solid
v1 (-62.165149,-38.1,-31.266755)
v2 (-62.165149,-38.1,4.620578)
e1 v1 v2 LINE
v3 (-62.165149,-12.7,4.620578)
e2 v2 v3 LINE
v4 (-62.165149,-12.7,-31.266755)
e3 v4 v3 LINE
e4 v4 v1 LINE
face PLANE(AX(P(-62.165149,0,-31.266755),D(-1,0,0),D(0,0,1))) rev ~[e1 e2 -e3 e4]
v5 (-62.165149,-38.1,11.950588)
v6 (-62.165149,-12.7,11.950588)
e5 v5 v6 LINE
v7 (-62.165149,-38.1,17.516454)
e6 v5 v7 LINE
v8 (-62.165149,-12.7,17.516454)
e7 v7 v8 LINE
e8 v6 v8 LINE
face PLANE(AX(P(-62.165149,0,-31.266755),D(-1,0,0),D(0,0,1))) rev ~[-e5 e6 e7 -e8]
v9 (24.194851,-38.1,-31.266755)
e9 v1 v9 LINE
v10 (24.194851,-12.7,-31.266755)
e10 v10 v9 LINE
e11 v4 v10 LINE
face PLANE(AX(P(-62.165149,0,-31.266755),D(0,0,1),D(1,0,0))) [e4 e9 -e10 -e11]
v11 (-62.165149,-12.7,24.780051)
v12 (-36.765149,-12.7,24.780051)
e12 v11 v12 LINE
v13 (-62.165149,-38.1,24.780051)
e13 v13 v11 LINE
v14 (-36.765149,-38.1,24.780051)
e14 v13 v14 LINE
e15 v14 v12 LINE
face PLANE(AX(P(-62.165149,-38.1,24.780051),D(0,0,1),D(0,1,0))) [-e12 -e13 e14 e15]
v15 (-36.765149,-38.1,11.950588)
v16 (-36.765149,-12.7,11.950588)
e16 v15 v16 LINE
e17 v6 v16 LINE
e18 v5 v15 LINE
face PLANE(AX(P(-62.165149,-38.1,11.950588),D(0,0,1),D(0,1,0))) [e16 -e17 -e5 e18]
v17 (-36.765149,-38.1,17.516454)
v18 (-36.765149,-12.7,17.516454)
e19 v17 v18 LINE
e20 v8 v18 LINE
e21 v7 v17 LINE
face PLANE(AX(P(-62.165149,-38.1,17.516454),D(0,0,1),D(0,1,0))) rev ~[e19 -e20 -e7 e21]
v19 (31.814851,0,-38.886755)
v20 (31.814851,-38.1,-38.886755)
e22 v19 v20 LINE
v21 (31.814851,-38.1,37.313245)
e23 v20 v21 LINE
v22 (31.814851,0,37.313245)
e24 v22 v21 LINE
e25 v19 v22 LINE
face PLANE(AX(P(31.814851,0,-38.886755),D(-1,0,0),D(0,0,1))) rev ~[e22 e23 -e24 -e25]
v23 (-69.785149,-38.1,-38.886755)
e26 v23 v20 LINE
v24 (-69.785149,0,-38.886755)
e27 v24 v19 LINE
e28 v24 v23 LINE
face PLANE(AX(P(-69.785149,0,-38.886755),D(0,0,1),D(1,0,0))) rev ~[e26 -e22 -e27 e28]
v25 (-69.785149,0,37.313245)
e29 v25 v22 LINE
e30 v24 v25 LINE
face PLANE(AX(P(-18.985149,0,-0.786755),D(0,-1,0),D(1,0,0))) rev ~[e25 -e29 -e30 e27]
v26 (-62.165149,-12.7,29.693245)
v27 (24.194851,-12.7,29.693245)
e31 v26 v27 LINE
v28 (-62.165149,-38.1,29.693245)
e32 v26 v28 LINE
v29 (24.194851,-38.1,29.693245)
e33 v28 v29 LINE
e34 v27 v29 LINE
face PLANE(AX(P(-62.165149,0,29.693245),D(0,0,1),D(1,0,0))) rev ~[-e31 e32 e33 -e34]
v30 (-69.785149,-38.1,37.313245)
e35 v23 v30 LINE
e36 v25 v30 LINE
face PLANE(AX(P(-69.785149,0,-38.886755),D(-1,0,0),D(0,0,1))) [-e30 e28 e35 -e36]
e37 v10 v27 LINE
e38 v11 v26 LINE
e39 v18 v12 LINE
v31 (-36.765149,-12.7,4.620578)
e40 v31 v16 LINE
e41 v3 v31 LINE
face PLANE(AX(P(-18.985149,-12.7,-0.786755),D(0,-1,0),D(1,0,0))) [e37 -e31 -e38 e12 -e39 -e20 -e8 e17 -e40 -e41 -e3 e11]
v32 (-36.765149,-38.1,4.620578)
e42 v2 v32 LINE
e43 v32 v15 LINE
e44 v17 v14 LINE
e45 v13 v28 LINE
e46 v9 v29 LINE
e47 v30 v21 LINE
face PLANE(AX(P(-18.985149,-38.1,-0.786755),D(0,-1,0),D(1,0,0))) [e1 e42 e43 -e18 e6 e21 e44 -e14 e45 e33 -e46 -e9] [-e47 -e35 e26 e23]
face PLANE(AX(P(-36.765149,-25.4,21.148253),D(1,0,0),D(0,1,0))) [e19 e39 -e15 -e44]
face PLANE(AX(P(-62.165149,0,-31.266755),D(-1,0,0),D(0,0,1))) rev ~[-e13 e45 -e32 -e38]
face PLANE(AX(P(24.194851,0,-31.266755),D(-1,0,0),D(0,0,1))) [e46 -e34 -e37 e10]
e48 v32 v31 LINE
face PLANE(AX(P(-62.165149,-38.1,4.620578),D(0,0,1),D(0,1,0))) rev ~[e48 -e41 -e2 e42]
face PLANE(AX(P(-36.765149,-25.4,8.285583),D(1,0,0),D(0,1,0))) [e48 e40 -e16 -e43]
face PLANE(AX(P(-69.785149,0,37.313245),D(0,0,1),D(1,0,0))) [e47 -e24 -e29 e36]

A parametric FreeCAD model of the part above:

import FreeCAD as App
import Part
import Sketcher
Q = App.Units.Quantity

doc = App.newDocument("Part")
params = doc.addObject("Spreadsheet::Sheet", "Params")
for row, (alias, value) in enumerate([
    ("sketch1_width", "4 in"),
    ("sketch1_height", "3 in"),
    ("sketch1_width2", "3.4 in"),
    ("sketch1_height2", "2.4 in"),
    ("pad1_length", "1.5 in"),
    ("sketch2_width", "3.4 in"),
    ("sketch2_height", "2.4 in"),
    ("pad2_length", "0.5 in"),
    ("sketch3_width", "1 in"),
    ("pad3_length", "1 in"),
    ("sketch4_width", "1 in"),
    ("pad4_length", "1 in"),
], start=1):
    params.set(f"A{row}", alias)
    params.set(f"B{row}", "=" + value)
    params.setAlias(f"B{row}", alias)

body = doc.addObject("PartDesign::Body", "Body")

# Sketch on XZ plane
sketch1 = body.newObject("Sketcher::SketchObject", "Sketch")
sketch1.AttachmentSupport = (doc.getObject("XZ_Plane"), [""])
sketch1.MapMode = "FlatFace"
sketch1.addGeometry(Part.LineSegment(App.Vector(-70, 37, 0), App.Vector(-70, -39, 0)), False)
sketch1.addGeometry(Part.LineSegment(App.Vector(-70, -39, 0), App.Vector(32, -39, 0)), False)
sketch1.addGeometry(Part.LineSegment(App.Vector(32, -39, 0), App.Vector(32, 37, 0)), False)
sketch1.addGeometry(Part.LineSegment(App.Vector(32, 37, 0), App.Vector(-70, 37, 0)), False)
sketch1.addGeometry(Part.LineSegment(App.Vector(24, -31, 0), App.Vector(-62, -31, 0)), False)
sketch1.addGeometry(Part.LineSegment(App.Vector(-62, -31, 0), App.Vector(-62, 30, 0)), False)
sketch1.addGeometry(Part.LineSegment(App.Vector(-62, 30, 0), App.Vector(24, 30, 0)), False)
sketch1.addGeometry(Part.LineSegment(App.Vector(24, 30, 0), App.Vector(24, -31, 0)), False)
sketch1.addConstraint(Sketcher.Constraint("Coincident", 0, 2, 1, 1))
sketch1.addConstraint(Sketcher.Constraint("Coincident", 1, 2, 2, 1))
sketch1.addConstraint(Sketcher.Constraint("Coincident", 2, 2, 3, 1))
sketch1.addConstraint(Sketcher.Constraint("Coincident", 3, 2, 0, 1))
sketch1.addConstraint(Sketcher.Constraint("Coincident", 4, 2, 5, 1))
sketch1.addConstraint(Sketcher.Constraint("Coincident", 5, 2, 6, 1))
sketch1.addConstraint(Sketcher.Constraint("Coincident", 6, 2, 7, 1))
sketch1.addConstraint(Sketcher.Constraint("Coincident", 7, 2, 4, 1))
sketch1.addConstraint(Sketcher.Constraint("Vertical", 0))
sketch1.addConstraint(Sketcher.Constraint("Horizontal", 1))
sketch1.addConstraint(Sketcher.Constraint("Vertical", 2))
sketch1.addConstraint(Sketcher.Constraint("Horizontal", 3))
sketch1.addConstraint(Sketcher.Constraint("Horizontal", 4))
sketch1.addConstraint(Sketcher.Constraint("Vertical", 5))
sketch1.addConstraint(Sketcher.Constraint("Horizontal", 6))
sketch1.addConstraint(Sketcher.Constraint("Vertical", 7))
sketch1.addConstraint(Sketcher.Constraint("DistanceX", 1, 1, 1, 2, Q("4 in")))
sketch1.addConstraint(Sketcher.Constraint("DistanceY", 0, 2, 0, 1, Q("3 in")))
sketch1.addConstraint(Sketcher.Constraint("DistanceX", 4, 2, 4, 1, Q("3.4 in")))
sketch1.addConstraint(Sketcher.Constraint("DistanceY", 5, 1, 5, 2, Q("2.4 in")))
sketch1.addConstraint(Sketcher.Constraint("DistanceX", 0, 2, 4, 2, Q("0.3 in")))
sketch1.addConstraint(Sketcher.Constraint("DistanceY", 0, 2, 4, 2, Q("0.3 in")))
sketch1.addConstraint(Sketcher.Constraint("DistanceX", 0, 2, -1, 1, Q("69.785149 mm")))
sketch1.addConstraint(Sketcher.Constraint("DistanceY", 0, 2, -1, 1, Q("38.886755 mm")))
sketch1.setExpression("Constraints[16]", "Params.sketch1_width")
sketch1.setExpression("Constraints[17]", "Params.sketch1_height")
sketch1.setExpression("Constraints[18]", "Params.sketch1_width2")
sketch1.setExpression("Constraints[19]", "Params.sketch1_height2")
pad1 = body.newObject("PartDesign::Pad", "Pad")
pad1.Profile = sketch1
pad1.setExpression("Length", "Params.pad1_length")

# Sketch on XZ plane
sketch2 = body.newObject("Sketcher::SketchObject", "Sketch001")
sketch2.AttachmentSupport = (doc.getObject("XZ_Plane"), [""])
sketch2.MapMode = "FlatFace"
sketch2.addGeometry(Part.LineSegment(App.Vector(-62, 30, 0), App.Vector(-62, -31, 0)), False)
sketch2.addGeometry(Part.LineSegment(App.Vector(-62, -31, 0), App.Vector(24, -31, 0)), False)
sketch2.addGeometry(Part.LineSegment(App.Vector(24, -31, 0), App.Vector(24, 30, 0)), False)
sketch2.addGeometry(Part.LineSegment(App.Vector(24, 30, 0), App.Vector(-62, 30, 0)), False)
sketch2.addConstraint(Sketcher.Constraint("Coincident", 0, 2, 1, 1))
sketch2.addConstraint(Sketcher.Constraint("Coincident", 1, 2, 2, 1))
sketch2.addConstraint(Sketcher.Constraint("Coincident", 2, 2, 3, 1))
sketch2.addConstraint(Sketcher.Constraint("Coincident", 3, 2, 0, 1))
sketch2.addConstraint(Sketcher.Constraint("Vertical", 0))
sketch2.addConstraint(Sketcher.Constraint("Horizontal", 1))
sketch2.addConstraint(Sketcher.Constraint("Vertical", 2))
sketch2.addConstraint(Sketcher.Constraint("Horizontal", 3))
sketch2.addConstraint(Sketcher.Constraint("DistanceX", 1, 1, 1, 2, Q("3.4 in")))
sketch2.addConstraint(Sketcher.Constraint("DistanceY", 0, 2, 0, 1, Q("2.4 in")))
sketch2.addConstraint(Sketcher.Constraint("DistanceX", 0, 2, -1, 1, Q("62.165149 mm")))
sketch2.addConstraint(Sketcher.Constraint("DistanceY", 0, 2, -1, 1, Q("31.266755 mm")))
sketch2.setExpression("Constraints[8]", "Params.sketch2_width")
sketch2.setExpression("Constraints[9]", "Params.sketch2_height")
pad2 = body.newObject("PartDesign::Pad", "Pad001")
pad2.Profile = sketch2
pad2.setExpression("Length", "Params.pad2_length")

# Sketch on YZ plane
sketch3 = body.newObject("Sketcher::SketchObject", "Sketch002")
sketch3.AttachmentSupport = (doc.getObject("YZ_Plane"), [""])
sketch3.MapMode = "FlatFace"
sketch3.AttachmentOffset = App.Placement(App.Vector(0, 0, -62.165149), App.Rotation())
sketch3.addGeometry(Part.LineSegment(App.Vector(-38, 25, 0), App.Vector(-38, 18, 0)), False)
sketch3.addGeometry(Part.LineSegment(App.Vector(-38, 18, 0), App.Vector(-13, 18, 0)), False)
sketch3.addGeometry(Part.LineSegment(App.Vector(-13, 18, 0), App.Vector(-13, 25, 0)), False)
sketch3.addGeometry(Part.LineSegment(App.Vector(-13, 25, 0), App.Vector(-38, 25, 0)), False)
sketch3.addConstraint(Sketcher.Constraint("Coincident", 0, 2, 1, 1))
sketch3.addConstraint(Sketcher.Constraint("Coincident", 1, 2, 2, 1))
sketch3.addConstraint(Sketcher.Constraint("Coincident", 2, 2, 3, 1))
sketch3.addConstraint(Sketcher.Constraint("Coincident", 3, 2, 0, 1))
sketch3.addConstraint(Sketcher.Constraint("Vertical", 0))
sketch3.addConstraint(Sketcher.Constraint("Horizontal", 1))
sketch3.addConstraint(Sketcher.Constraint("Vertical", 2))
sketch3.addConstraint(Sketcher.Constraint("Horizontal", 3))
sketch3.addConstraint(Sketcher.Constraint("DistanceX", 1, 1, 1, 2, Q("1 in")))
sketch3.addConstraint(Sketcher.Constraint("DistanceX", 0, 2, -1, 1, Q("1.5 in")))
sketch3.addConstraint(Sketcher.Constraint("DistanceY", 0, 2, 0, 1, Q("7.263597 mm")))
sketch3.addConstraint(Sketcher.Constraint("DistanceY", -1, 1, 2, 2, Q("24.780051 mm")))
sketch3.setExpression("Constraints[8]", "Params.sketch3_width")
pad3 = body.newObject("PartDesign::Pad", "Pad002")
pad3.Profile = sketch3
pad3.setExpression("Length", "Params.pad3_length")

# Sketch on YZ plane
sketch4 = body.newObject("Sketcher::SketchObject", "Sketch003")
sketch4.AttachmentSupport = (doc.getObject("YZ_Plane"), [""])
sketch4.MapMode = "FlatFace"
sketch4.AttachmentOffset = App.Placement(App.Vector(0, 0, -62.165149), App.Rotation())
sketch4.addGeometry(Part.LineSegment(App.Vector(-38, 12, 0), App.Vector(-38, 5, 0)), False)
sketch4.addGeometry(Part.LineSegment(App.Vector(-38, 5, 0), App.Vector(-13, 5, 0)), False)
sketch4.addGeometry(Part.LineSegment(App.Vector(-13, 5, 0), App.Vector(-13, 12, 0)), False)
sketch4.addGeometry(Part.LineSegment(App.Vector(-13, 12, 0), App.Vector(-38, 12, 0)), False)
sketch4.addConstraint(Sketcher.Constraint("Coincident", 0, 2, 1, 1))
sketch4.addConstraint(Sketcher.Constraint("Coincident", 1, 2, 2, 1))
sketch4.addConstraint(Sketcher.Constraint("Coincident", 2, 2, 3, 1))
sketch4.addConstraint(Sketcher.Constraint("Coincident", 3, 2, 0, 1))
sketch4.addConstraint(Sketcher.Constraint("Vertical", 0))
sketch4.addConstraint(Sketcher.Constraint("Horizontal", 1))
sketch4.addConstraint(Sketcher.Constraint("Vertical", 2))
sketch4.addConstraint(Sketcher.Constraint("Horizontal", 3))
sketch4.addConstraint(Sketcher.Constraint("DistanceX", 1, 1, 1, 2, Q("1 in")))
sketch4.addConstraint(Sketcher.Constraint("DistanceX", 0, 2, -1, 1, Q("1.5 in")))
sketch4.addConstraint(Sketcher.Constraint("DistanceY", 0, 2, 0, 1, Q("7.33001 mm")))
sketch4.addConstraint(Sketcher.Constraint("DistanceY", -1, 1, 0, 2, Q("4.620578 mm")))
sketch4.setExpression("Constraints[8]", "Params.sketch4_width")
pad4 = body.newObject("PartDesign::Pad", "Pad003")
pad4.Profile = sketch4
pad4.setExpression("Length", "Params.pad4_length")

doc.recompute()
